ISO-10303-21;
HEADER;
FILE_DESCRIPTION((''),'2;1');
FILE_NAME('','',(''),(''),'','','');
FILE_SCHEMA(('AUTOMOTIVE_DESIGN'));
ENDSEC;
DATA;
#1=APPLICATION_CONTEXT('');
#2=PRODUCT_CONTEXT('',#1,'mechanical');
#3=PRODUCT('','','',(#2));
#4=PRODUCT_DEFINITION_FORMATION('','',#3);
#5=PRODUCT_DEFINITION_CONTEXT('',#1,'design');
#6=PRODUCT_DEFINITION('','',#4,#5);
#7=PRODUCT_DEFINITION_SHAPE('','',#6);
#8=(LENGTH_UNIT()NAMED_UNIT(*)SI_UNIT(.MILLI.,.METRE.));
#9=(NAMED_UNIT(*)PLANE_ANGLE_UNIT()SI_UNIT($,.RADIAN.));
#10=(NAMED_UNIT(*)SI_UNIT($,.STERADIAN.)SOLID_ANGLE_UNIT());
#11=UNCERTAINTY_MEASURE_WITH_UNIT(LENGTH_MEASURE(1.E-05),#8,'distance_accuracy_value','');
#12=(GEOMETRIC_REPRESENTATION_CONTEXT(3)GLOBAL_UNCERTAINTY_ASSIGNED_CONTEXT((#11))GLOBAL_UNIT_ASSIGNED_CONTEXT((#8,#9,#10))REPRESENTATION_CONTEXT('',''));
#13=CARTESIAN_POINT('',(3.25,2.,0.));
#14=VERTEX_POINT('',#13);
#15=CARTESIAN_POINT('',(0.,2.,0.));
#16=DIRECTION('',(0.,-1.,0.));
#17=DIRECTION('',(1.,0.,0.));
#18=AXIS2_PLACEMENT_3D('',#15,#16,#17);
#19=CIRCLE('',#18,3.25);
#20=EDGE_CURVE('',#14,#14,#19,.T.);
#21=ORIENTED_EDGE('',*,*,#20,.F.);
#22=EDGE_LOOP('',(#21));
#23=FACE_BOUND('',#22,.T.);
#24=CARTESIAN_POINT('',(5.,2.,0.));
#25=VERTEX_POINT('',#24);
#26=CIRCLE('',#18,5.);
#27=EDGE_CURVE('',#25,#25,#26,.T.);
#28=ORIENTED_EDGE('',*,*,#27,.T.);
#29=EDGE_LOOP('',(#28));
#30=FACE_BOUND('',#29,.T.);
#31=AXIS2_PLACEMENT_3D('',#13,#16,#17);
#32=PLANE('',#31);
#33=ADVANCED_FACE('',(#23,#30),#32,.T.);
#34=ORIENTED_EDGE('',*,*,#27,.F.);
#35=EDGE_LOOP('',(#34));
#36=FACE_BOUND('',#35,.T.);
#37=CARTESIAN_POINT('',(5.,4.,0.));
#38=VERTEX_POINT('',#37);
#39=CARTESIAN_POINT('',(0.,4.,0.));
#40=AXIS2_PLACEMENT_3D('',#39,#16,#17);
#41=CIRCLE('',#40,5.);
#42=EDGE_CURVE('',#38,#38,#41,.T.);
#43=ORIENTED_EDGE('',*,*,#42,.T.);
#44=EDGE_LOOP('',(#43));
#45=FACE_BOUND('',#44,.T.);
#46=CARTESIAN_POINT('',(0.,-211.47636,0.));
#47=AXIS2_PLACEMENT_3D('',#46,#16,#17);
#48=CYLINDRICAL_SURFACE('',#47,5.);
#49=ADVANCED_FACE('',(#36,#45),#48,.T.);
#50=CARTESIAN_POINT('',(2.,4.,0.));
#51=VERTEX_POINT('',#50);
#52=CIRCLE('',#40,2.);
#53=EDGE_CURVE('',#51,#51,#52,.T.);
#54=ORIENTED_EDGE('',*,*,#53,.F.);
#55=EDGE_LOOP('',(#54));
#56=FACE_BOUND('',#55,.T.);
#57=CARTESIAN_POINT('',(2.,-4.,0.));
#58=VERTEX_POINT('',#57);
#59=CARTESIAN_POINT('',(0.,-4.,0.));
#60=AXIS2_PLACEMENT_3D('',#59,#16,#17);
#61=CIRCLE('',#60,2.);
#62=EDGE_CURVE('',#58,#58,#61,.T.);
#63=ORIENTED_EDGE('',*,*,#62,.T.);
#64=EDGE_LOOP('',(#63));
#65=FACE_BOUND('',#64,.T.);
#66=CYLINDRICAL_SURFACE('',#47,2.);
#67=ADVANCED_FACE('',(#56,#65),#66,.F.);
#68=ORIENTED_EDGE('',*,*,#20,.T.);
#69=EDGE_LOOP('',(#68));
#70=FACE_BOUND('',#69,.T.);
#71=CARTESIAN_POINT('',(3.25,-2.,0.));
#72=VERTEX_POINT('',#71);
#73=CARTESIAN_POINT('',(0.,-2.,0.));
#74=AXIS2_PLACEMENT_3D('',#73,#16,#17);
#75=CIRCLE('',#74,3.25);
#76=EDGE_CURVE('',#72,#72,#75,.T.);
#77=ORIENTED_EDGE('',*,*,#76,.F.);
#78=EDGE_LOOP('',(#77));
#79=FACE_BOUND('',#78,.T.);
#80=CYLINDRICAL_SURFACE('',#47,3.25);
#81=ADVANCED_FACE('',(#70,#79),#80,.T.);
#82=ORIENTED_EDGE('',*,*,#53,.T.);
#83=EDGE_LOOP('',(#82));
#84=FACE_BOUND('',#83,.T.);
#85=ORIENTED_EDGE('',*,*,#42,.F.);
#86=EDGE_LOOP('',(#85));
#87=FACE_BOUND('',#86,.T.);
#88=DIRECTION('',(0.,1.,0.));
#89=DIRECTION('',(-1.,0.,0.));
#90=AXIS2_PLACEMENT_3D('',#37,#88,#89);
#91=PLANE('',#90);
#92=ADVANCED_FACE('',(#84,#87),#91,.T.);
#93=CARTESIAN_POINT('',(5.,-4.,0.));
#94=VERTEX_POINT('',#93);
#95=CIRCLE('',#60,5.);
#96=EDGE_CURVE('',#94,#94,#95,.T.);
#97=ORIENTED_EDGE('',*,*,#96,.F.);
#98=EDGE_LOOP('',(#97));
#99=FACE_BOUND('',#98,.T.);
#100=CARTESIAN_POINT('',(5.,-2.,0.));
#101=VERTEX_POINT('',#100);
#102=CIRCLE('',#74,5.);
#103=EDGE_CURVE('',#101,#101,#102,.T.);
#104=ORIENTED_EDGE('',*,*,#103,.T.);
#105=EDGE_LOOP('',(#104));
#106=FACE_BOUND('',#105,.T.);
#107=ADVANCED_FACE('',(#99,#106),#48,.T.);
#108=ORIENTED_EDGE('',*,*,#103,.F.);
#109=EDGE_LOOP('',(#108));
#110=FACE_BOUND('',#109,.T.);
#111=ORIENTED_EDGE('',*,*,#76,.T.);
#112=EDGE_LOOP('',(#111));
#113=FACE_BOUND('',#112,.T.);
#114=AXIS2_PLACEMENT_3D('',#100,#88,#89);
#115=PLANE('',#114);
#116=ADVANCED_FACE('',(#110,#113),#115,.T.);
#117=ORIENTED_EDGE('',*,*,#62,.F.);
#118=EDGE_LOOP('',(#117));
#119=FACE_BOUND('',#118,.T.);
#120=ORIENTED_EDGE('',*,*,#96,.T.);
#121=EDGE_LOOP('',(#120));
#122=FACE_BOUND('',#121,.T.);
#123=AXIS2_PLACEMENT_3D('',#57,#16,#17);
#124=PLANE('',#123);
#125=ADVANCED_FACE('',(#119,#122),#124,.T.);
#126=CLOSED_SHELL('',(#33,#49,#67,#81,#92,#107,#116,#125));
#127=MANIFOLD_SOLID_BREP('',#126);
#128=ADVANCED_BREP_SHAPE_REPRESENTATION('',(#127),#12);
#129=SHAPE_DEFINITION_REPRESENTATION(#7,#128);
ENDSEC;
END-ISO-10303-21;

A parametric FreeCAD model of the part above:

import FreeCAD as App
import Part
import Sketcher
from FreeCAD import Vector

doc = App.newDocument("Part")
params = doc.addObject("Spreadsheet::Sheet", "Params")
for row, (alias, value) in enumerate([
    ("sketch1_width", "3 mm"),
    ("sketch1_height", "8 mm"),
    ("sketch1_height2", "2 mm"),
    ("sketch1_width2", "1.75 mm"),
    ("revolution_angle", "360 deg"),
], start=1):
    params.set(f"A{row}", alias)
    params.set(f"B{row}", "=" + value)
    params.setAlias(f"B{row}", alias)

body = doc.addObject("PartDesign::Body", "Body")

sketch1 = body.newObject("Sketcher::SketchObject", "Sketch")
sketch1.AttachmentSupport = (doc.getObject("XY_Plane"), [""])
sketch1.MapMode = "FlatFace"
sketch1.addGeometry([
    Part.LineSegment(Vector(2, 4, 0), Vector(2, -4, 0)),
    Part.LineSegment(Vector(2, -4, 0), Vector(5, -4, 0)),
    Part.LineSegment(Vector(5, -4, 0), Vector(5, -2, 0)),
    Part.LineSegment(Vector(5, -2, 0), Vector(3.2, -2, 0)),
    Part.LineSegment(Vector(3.2, -2, 0), Vector(3.2, 2, 0)),
    Part.LineSegment(Vector(3.2, 2, 0), Vector(5, 2, 0)),
    Part.LineSegment(Vector(5, 2, 0), Vector(5, 4, 0)),
    Part.LineSegment(Vector(5, 4, 0), Vector(2, 4, 0)),
], False)
sketch1.addConstraint([
    Sketcher.Constraint("Coincident", 0, 2, 1, 1),
    Sketcher.Constraint("Coincident", 1, 2, 2, 1),
    Sketcher.Constraint("Coincident", 2, 2, 3, 1),
    Sketcher.Constraint("Coincident", 3, 2, 4, 1),
    Sketcher.Constraint("Coincident", 4, 2, 5, 1),
    Sketcher.Constraint("Coincident", 5, 2, 6, 1),
    Sketcher.Constraint("Coincident", 6, 2, 7, 1),
    Sketcher.Constraint("Coincident", 7, 2, 0, 1),
    Sketcher.Constraint("Vertical", 0),
    Sketcher.Constraint("Horizontal", 1),
    Sketcher.Constraint("Vertical", 2),
    Sketcher.Constraint("Horizontal", 3),
    Sketcher.Constraint("Vertical", 4),
    Sketcher.Constraint("Horizontal", 5),
    Sketcher.Constraint("Vertical", 6),
    Sketcher.Constraint("Horizontal", 7),
    Sketcher.Constraint("Symmetric", 2, 2, 5, 2, -1),
    Sketcher.Constraint("Equal", 2, 6),
    Sketcher.Constraint("DistanceX", 1, 1, 1, 2, 3.0),
    Sketcher.Constraint("DistanceY", 0, 2, 0, 1, 8.0),
    Sketcher.Constraint("DistanceY", 2, 1, 2, 2, 2.0),
    Sketcher.Constraint("DistanceX", -1, 1, 0, 2, 2.0),
    Sketcher.Constraint("DistanceX", 3, 2, 3, 1, 1.75),
])
sketch1.setExpression("Constraints[18]", "Params.sketch1_width")
sketch1.setExpression("Constraints[19]", "Params.sketch1_height")
sketch1.setExpression("Constraints[20]", "Params.sketch1_height2")
sketch1.setExpression("Constraints[22]", "Params.sketch1_width2")
revolution = body.newObject("PartDesign::Revolution", "Revolution")
revolution.Profile = sketch1
revolution.ReferenceAxis = (sketch1, ["V_Axis"])
revolution.setExpression("Angle", "Params.revolution_angle")

doc.recompute()
